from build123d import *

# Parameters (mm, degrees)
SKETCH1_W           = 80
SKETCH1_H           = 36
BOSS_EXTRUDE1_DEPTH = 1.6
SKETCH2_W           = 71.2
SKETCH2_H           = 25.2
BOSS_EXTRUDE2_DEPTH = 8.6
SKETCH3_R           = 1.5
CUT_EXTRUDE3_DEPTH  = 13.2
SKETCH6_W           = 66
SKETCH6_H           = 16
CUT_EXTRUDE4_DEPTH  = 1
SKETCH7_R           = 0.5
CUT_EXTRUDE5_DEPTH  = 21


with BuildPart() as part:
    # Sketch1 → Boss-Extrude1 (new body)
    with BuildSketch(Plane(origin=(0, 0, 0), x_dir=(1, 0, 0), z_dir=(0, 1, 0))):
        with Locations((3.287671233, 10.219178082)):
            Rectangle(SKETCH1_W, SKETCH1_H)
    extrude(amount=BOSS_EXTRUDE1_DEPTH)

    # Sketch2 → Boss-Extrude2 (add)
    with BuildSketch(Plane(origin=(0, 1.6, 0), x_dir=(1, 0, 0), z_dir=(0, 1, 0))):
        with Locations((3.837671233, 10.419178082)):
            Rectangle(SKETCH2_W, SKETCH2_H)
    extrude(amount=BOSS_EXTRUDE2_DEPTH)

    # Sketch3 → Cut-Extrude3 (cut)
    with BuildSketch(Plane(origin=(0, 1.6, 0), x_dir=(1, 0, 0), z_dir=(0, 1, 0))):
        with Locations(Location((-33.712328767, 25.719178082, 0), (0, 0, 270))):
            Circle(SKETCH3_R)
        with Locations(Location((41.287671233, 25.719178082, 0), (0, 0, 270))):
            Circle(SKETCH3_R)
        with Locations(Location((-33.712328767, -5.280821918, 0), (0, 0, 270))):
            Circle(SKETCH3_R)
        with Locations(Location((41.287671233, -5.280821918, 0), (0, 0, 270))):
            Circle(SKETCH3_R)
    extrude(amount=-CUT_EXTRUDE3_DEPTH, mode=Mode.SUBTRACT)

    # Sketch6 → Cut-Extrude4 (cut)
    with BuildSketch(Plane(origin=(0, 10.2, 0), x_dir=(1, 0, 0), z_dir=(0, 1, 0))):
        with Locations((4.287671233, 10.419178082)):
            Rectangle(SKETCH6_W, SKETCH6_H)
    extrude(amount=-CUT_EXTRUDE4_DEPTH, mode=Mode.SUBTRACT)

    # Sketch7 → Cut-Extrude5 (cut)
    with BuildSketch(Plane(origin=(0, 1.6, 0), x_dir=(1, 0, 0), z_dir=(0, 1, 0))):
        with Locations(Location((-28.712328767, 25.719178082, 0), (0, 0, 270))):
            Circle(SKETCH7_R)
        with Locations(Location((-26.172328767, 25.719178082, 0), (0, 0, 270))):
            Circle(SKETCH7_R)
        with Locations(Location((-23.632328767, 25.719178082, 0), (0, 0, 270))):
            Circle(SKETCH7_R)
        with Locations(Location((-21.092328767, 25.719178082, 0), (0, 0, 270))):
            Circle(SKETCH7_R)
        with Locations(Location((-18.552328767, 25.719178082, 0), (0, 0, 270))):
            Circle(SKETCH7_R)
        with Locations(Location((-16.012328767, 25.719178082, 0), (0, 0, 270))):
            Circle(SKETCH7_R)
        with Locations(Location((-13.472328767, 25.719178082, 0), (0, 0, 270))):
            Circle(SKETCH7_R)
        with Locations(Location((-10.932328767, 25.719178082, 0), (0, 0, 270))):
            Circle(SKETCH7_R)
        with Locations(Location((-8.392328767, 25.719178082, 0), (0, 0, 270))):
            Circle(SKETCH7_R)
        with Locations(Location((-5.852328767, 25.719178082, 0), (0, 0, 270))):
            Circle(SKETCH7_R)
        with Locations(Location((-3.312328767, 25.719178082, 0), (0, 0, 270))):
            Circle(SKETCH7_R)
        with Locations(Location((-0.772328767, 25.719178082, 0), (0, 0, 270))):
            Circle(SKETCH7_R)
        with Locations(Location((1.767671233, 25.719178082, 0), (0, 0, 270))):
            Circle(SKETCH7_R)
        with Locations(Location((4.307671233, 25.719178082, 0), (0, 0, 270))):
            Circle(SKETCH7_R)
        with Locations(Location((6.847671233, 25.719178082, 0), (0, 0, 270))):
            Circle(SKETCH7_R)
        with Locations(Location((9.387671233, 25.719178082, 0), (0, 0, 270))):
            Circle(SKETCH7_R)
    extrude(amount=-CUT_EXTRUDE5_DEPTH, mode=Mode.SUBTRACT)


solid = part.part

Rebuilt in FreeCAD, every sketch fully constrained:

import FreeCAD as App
import Part
import Sketcher
from FreeCAD import Vector
Q = App.Units.Quantity

doc = App.newDocument("Part")
body = doc.addObject("PartDesign::Body", "Body")

# Sketch on XZ plane
sketch1 = body.newObject("Sketcher::SketchObject", "Sketch")
sketch1.AttachmentSupport = (doc.getObject("XZ_Plane"), [""])
sketch1.MapMode = "FlatFace"
sketch1.addGeometry([
    Part.LineSegment(Vector(-37, -28, 0), Vector(-37, 8, 0)),
    Part.LineSegment(Vector(-37, 8, 0), Vector(43, 8, 0)),
    Part.LineSegment(Vector(43, 8, 0), Vector(43, -28, 0)),
    Part.LineSegment(Vector(43, -28, 0), Vector(-37, -28, 0)),
], False)
sketch1.addConstraint([
    Sketcher.Constraint("Coincident", 0, 2, 1, 1),
    Sketcher.Constraint("Coincident", 1, 2, 2, 1),
    Sketcher.Constraint("Coincident", 2, 2, 3, 1),
    Sketcher.Constraint("Coincident", 3, 2, 0, 1),
    Sketcher.Constraint("Vertical", 0),
    Sketcher.Constraint("Horizontal", 1),
    Sketcher.Constraint("Vertical", 2),
    Sketcher.Constraint("Horizontal", 3),
    Sketcher.Constraint("DistanceX", 1, 1, 1, 2, Q("80 mm")),
    Sketcher.Constraint("DistanceY", 0, 1, 0, 2, Q("36 mm")),
    Sketcher.Constraint("DistanceX", 0, 2, -1, 1, Q("36.712329 mm")),
    Sketcher.Constraint("DistanceY", -1, 1, 0, 2, Q("7.780822 mm")),
])
pad1 = body.newObject("PartDesign::Pad", "Pad")
pad1.Profile = sketch1
pad1.Length = 1.6
pad1.Reversed = True

# Sketch on XZ plane
sketch2 = body.newObject("Sketcher::SketchObject", "Sketch001")
sketch2.AttachmentSupport = (doc.getObject("XZ_Plane"), [""])
sketch2.MapMode = "FlatFace"
sketch2.AttachmentOffset = App.Placement(Vector(0, 0, -1.6), App.Rotation())
sketch2.addGeometry([
    Part.LineSegment(Vector(-32, -23, 0), Vector(-32, 2, 0)),
    Part.LineSegment(Vector(-32, 2, 0), Vector(39, 2, 0)),
    Part.LineSegment(Vector(39, 2, 0), Vector(39, -23, 0)),
    Part.LineSegment(Vector(39, -23, 0), Vector(-32, -23, 0)),
], False)
sketch2.addConstraint([
    Sketcher.Constraint("Coincident", 0, 2, 1, 1),
    Sketcher.Constraint("Coincident", 1, 2, 2, 1),
    Sketcher.Constraint("Coincident", 2, 2, 3, 1),
    Sketcher.Constraint("Coincident", 3, 2, 0, 1),
    Sketcher.Constraint("Vertical", 0),
    Sketcher.Constraint("Horizontal", 1),
    Sketcher.Constraint("Vertical", 2),
    Sketcher.Constraint("Horizontal", 3),
    Sketcher.Constraint("DistanceX", 1, 1, 1, 2, Q("71.2 mm")),
    Sketcher.Constraint("DistanceY", 0, 1, 0, 2, Q("25.2 mm")),
    Sketcher.Constraint("DistanceX", 0, 2, -1, 1, Q("31.762329 mm")),
    Sketcher.Constraint("DistanceY", -1, 1, 0, 2, Q("2.180822 mm")),
])
pad2 = body.newObject("PartDesign::Pad", "Pad001")
pad2.Profile = sketch2
pad2.Length = 8.6
pad2.Reversed = True

# Sketch on XZ plane
sketch3 = body.newObject("Sketcher::SketchObject", "Sketch002")
sketch3.AttachmentSupport = (doc.getObject("XZ_Plane"), [""])
sketch3.MapMode = "FlatFace"
sketch3.AttachmentOffset = App.Placement(Vector(0, 0, -1.6), App.Rotation())
sketch3.addGeometry([
    Part.Circle(Vector(-33.7, -25.7, 0), Vector(0, 0, 1), 1.5),
    Part.Circle(Vector(41.3, -25.7, 0), Vector(0, 0, 1), 1.5),
    Part.Circle(Vector(-33.7, 5.3, 0), Vector(0, 0, 1), 1.5),
    Part.Circle(Vector(41.3, 5.3, 0), Vector(0, 0, 1), 1.5),
], False)
sketch3.addConstraint([
    Sketcher.Constraint("Equal", 0, 1),
    Sketcher.Constraint("Equal", 1, 2),
    Sketcher.Constraint("Equal", 2, 3),
    Sketcher.Constraint("Horizontal", 0, 3, 1, 3),
    Sketcher.Constraint("Horizontal", 2, 3, 3, 3),
    Sketcher.Constraint("Vertical", 0, 3, 2, 3),
    Sketcher.Constraint("Vertical", 1, 3, 3, 3),
    Sketcher.Constraint("Diameter", 0, Q("3 mm")),
    Sketcher.Constraint("DistanceX", 0, 3, 1, 3, Q("75 mm")),
    Sketcher.Constraint("DistanceY", 0, 3, 2, 3, Q("31 mm")),
    Sketcher.Constraint("DistanceX", 0, 3, -1, 1, Q("33.712329 mm")),
    Sketcher.Constraint("DistanceY", 0, 3, -1, 1, Q("25.719178 mm")),
])
pocket1 = body.newObject("PartDesign::Pocket", "Pocket")
pocket1.Profile = sketch3
pocket1.Length = 13.2
pocket1.Reversed = True

# Sketch on XZ plane
sketch4 = body.newObject("Sketcher::SketchObject", "Sketch003")
sketch4.AttachmentSupport = (doc.getObject("XZ_Plane"), [""])
sketch4.MapMode = "FlatFace"
sketch4.AttachmentOffset = App.Placement(Vector(0, 0, -10.2), App.Rotation())
sketch4.addGeometry([
    Part.LineSegment(Vector(-29, -18, 0), Vector(-29, -2, 0)),
    Part.LineSegment(Vector(-29, -2, 0), Vector(37, -2, 0)),
    Part.LineSegment(Vector(37, -2, 0), Vector(37, -18, 0)),
    Part.LineSegment(Vector(37, -18, 0), Vector(-29, -18, 0)),
], False)
sketch4.addConstraint([
    Sketcher.Constraint("Coincident", 0, 2, 1, 1),
    Sketcher.Constraint("Coincident", 1, 2, 2, 1),
    Sketcher.Constraint("Coincident", 2, 2, 3, 1),
    Sketcher.Constraint("Coincident", 3, 2, 0, 1),
    Sketcher.Constraint("Vertical", 0),
    Sketcher.Constraint("Horizontal", 1),
    Sketcher.Constraint("Vertical", 2),
    Sketcher.Constraint("Horizontal", 3),
    Sketcher.Constraint("DistanceX", 1, 1, 1, 2, Q("66 mm")),
    Sketcher.Constraint("DistanceY", 0, 1, 0, 2, Q("16 mm")),
    Sketcher.Constraint("DistanceX", 0, 2, -1, 1, Q("28.712329 mm")),
    Sketcher.Constraint("DistanceY", 0, 2, -1, 1, Q("2.419178 mm")),
])
pocket2 = body.newObject("PartDesign::Pocket", "Pocket001")
pocket2.Profile = sketch4
pocket2.Length = 1
pocket2.Reversed = True

# Sketch on XZ plane
sketch5 = body.newObject("Sketcher::SketchObject", "Sketch004")
sketch5.AttachmentSupport = (doc.getObject("XZ_Plane"), [""])
sketch5.MapMode = "FlatFace"
sketch5.AttachmentOffset = App.Placement(Vector(0, 0, -1.6), App.Rotation())
sketch5.addGeometry([
    Part.Circle(Vector(-28.7, -25.7, 0), Vector(0, 0, 1), 0.5),  # 0
    Part.Circle(Vector(-26.2, -25.7, 0), Vector(0, 0, 1), 0.5),  # 1
    Part.Circle(Vector(-23.6, -25.7, 0), Vector(0, 0, 1), 0.5),  # 2
    Part.Circle(Vector(-21.1, -25.7, 0), Vector(0, 0, 1), 0.5),  # 3
    Part.Circle(Vector(-18.6, -25.7, 0), Vector(0, 0, 1), 0.5),  # 4
    Part.Circle(Vector(-16, -25.7, 0), Vector(0, 0, 1), 0.5),  # 5
    Part.Circle(Vector(-13.5, -25.7, 0), Vector(0, 0, 1), 0.5),  # 6
    Part.Circle(Vector(-10.9, -25.7, 0), Vector(0, 0, 1), 0.5),  # 7
    Part.Circle(Vector(-8.4, -25.7, 0), Vector(0, 0, 1), 0.5),  # 8
    Part.Circle(Vector(-5.9, -25.7, 0), Vector(0, 0, 1), 0.5),  # 9
    Part.Circle(Vector(-3.3, -25.7, 0), Vector(0, 0, 1), 0.5),  # 10
    Part.Circle(Vector(-0.8, -25.7, 0), Vector(0, 0, 1), 0.5),  # 11
    Part.Circle(Vector(1.8, -25.7, 0), Vector(0, 0, 1), 0.5),  # 12
    Part.Circle(Vector(4.3, -25.7, 0), Vector(0, 0, 1), 0.5),  # 13
    Part.Circle(Vector(6.8, -25.7, 0), Vector(0, 0, 1), 0.5),  # 14
    Part.Circle(Vector(9.4, -25.7, 0), Vector(0, 0, 1), 0.5),  # 15
], False)
sketch5.addConstraint([
    Sketcher.Constraint("Equal", 0, 1),
    Sketcher.Constraint("Equal", 1, 2),
    Sketcher.Constraint("Equal", 2, 3),
    Sketcher.Constraint("Equal", 3, 4),
    Sketcher.Constraint("Equal", 4, 5),
    Sketcher.Constraint("Equal", 5, 6),
    Sketcher.Constraint("Equal", 6, 7),
    Sketcher.Constraint("Equal", 7, 8),
    Sketcher.Constraint("Equal", 8, 9),
    Sketcher.Constraint("Equal", 9, 10),
    Sketcher.Constraint("Equal", 10, 11),
    Sketcher.Constraint("Equal", 11, 12),
    Sketcher.Constraint("Equal", 12, 13),
    Sketcher.Constraint("Equal", 13, 14),
    Sketcher.Constraint("Equal", 14, 15),
    Sketcher.Constraint("Horizontal", 0, 3, 1, 3),
    Sketcher.Constraint("Horizontal", 1, 3, 2, 3),
    Sketcher.Constraint("Horizontal", 2, 3, 3, 3),
    Sketcher.Constraint("Horizontal", 3, 3, 4, 3),
    Sketcher.Constraint("Horizontal", 4, 3, 5, 3),
    Sketcher.Constraint("Horizontal", 5, 3, 6, 3),
    Sketcher.Constraint("Horizontal", 6, 3, 7, 3),
    Sketcher.Constraint("Horizontal", 7, 3, 8, 3),
    Sketcher.Constraint("Horizontal", 8, 3, 9, 3),
    Sketcher.Constraint("Horizontal", 9, 3, 10, 3),
    Sketcher.Constraint("Horizontal", 10, 3, 11, 3),
    Sketcher.Constraint("Horizontal", 11, 3, 12, 3),
    Sketcher.Constraint("Horizontal", 12, 3, 13, 3),
    Sketcher.Constraint("Horizontal", 13, 3, 14, 3),
    Sketcher.Constraint("Horizontal", 14, 3, 15, 3),
    Sketcher.Constraint("Diameter", 0, Q("1 mm")),
    Sketcher.Constraint("DistanceX", 0, 3, 5, 3, Q("12.7 mm")),
    Sketcher.Constraint("DistanceX", 1, 3, 6, 3, Q("12.7 mm")),
    Sketcher.Constraint("DistanceX", 2, 3, 7, 3, Q("12.7 mm")),
    Sketcher.Constraint("DistanceX", 3, 3, 8, 3, Q("12.7 mm")),
    Sketcher.Constraint("DistanceX", 4, 3, 9, 3, Q("12.7 mm")),
    Sketcher.Constraint("DistanceX", 5, 3, 10, 3, Q("12.7 mm")),
    Sketcher.Constraint("DistanceX", 6, 3, 11, 3, Q("12.7 mm")),
    Sketcher.Constraint("DistanceX", 7, 3, 12, 3, Q("12.7 mm")),
    Sketcher.Constraint("DistanceX", 8, 3, 13, 3, Q("12.7 mm")),
    Sketcher.Constraint("DistanceX", 9, 3, 14, 3, Q("12.7 mm")),
    Sketcher.Constraint("DistanceX", 10, 3, 15, 3, Q("12.7 mm")),
    Sketcher.Constraint("DistanceX", 0, 3, 1, 3, Q("2.54 mm")),
    Sketcher.Constraint("DistanceX", 1, 3, 2, 3, Q("2.54 mm")),
    Sketcher.Constraint("DistanceX", 2, 3, 3, 3, Q("2.54 mm")),
    Sketcher.Constraint("DistanceX", 3, 3, 4, 3, Q("2.54 mm")),
    Sketcher.Constraint("DistanceX", 0, 3, -1, 1, Q("28.712329 mm")),
    Sketcher.Constraint("DistanceY", 0, 3, -1, 1, Q("25.719178 mm")),
])
pocket3 = body.newObject("PartDesign::Pocket", "Pocket002")
pocket3.Profile = sketch5
pocket3.Length = 21
pocket3.Reversed = True

doc.recompute()
